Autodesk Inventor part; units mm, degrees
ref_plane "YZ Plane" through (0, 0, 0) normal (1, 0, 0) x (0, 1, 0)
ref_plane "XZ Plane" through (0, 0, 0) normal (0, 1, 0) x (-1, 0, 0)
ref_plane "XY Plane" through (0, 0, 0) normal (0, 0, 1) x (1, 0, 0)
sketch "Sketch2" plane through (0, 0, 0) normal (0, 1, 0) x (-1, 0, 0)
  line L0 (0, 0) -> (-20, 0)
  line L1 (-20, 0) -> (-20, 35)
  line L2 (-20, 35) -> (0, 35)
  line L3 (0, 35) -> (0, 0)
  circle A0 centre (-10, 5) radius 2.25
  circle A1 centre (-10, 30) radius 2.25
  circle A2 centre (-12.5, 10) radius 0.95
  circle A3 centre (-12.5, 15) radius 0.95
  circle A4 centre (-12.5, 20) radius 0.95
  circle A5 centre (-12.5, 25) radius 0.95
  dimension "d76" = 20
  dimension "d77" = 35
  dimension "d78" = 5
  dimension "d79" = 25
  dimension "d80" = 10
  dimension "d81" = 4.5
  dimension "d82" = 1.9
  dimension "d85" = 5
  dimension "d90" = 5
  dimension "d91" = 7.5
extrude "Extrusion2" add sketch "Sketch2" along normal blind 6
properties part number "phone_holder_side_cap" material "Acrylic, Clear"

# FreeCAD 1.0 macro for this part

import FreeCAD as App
import Part
import Sketcher
Q = App.Units.Quantity


def add_polygon(sketch, points):
    """Adds a closed chain of lines whose ends are joined by coincident constraints."""
    first, n = sketch.GeometryCount, len(points)
    for a, b in zip(points, points[1:] + points[:1]):
        sketch.addGeometry(Part.LineSegment(App.Vector(*a, 0), App.Vector(*b, 0)), False)
    for i in range(n):
        sketch.addConstraint(Sketcher.Constraint("Coincident", first + i, 2, first + (i + 1) % n, 1))

doc = App.newDocument("Part")
body = doc.addObject("PartDesign::Body", "Body")

sketch1 = body.newObject("Sketcher::SketchObject", "Sketch")
sketch1.AttachmentSupport = (doc.getObject("XZ_Plane"), [""])
sketch1.MapMode = "FlatFace"
add_polygon(sketch1, [(20, 0), (0, 0), (0, 35), (20, 35)])
sketch1.addGeometry(Part.Circle(App.Vector(12.5, 10, 0), App.Vector(0, 0, 1), 0.95), False)
sketch1.addGeometry(Part.Circle(App.Vector(12.5, 15, 0), App.Vector(0, 0, 1), 0.95), False)
sketch1.addGeometry(Part.Circle(App.Vector(10, 5, 0), App.Vector(0, 0, 1), 2.25), False)
sketch1.addGeometry(Part.Circle(App.Vector(12.5, 20, 0), App.Vector(0, 0, 1), 0.95), False)
sketch1.addGeometry(Part.Circle(App.Vector(12.5, 25, 0), App.Vector(0, 0, 1), 0.95), False)
sketch1.addGeometry(Part.Circle(App.Vector(10, 30, 0), App.Vector(0, 0, 1), 2.25), False)
sketch1.addConstraint(Sketcher.Constraint("Horizontal", 0))
sketch1.addConstraint(Sketcher.Constraint("Vertical", 1))
sketch1.addConstraint(Sketcher.Constraint("Horizontal", 2))
sketch1.addConstraint(Sketcher.Constraint("Vertical", 3))
sketch1.addConstraint(Sketcher.Constraint("Coincident", 0, 2, -1, 1))
sketch1.addConstraint(Sketcher.Constraint("Equal", 4, 5))
sketch1.addConstraint(Sketcher.Constraint("Equal", 5, 7))
sketch1.addConstraint(Sketcher.Constraint("Equal", 7, 8))
sketch1.addConstraint(Sketcher.Constraint("Equal", 6, 9))
sketch1.addConstraint(Sketcher.Constraint("Vertical", 4, 3, 5, 3))
sketch1.addConstraint(Sketcher.Constraint("Vertical", 5, 3, 7, 3))
sketch1.addConstraint(Sketcher.Constraint("Vertical", 7, 3, 8, 3))
sketch1.addConstraint(Sketcher.Constraint("Vertical", 6, 3, 9, 3))
sketch1.addConstraint(Sketcher.Constraint("Diameter", 4, Q("1.9 mm")))
sketch1.addConstraint(Sketcher.Constraint("Diameter", 6, Q("4.5 mm")))
sketch1.addConstraint(Sketcher.Constraint("DistanceX", 0, 2, 0, 1, Q("20 mm")))
sketch1.addConstraint(Sketcher.Constraint("DistanceY", 1, 1, 1, 2, Q("35 mm")))
sketch1.addConstraint(Sketcher.Constraint("DistanceY", -1, 1, 4, 3, Q("10 mm")))
sketch1.addConstraint(Sketcher.Constraint("DistanceX", -1, 1, 6, 3, Q("10 mm")))
sketch1.addConstraint(Sketcher.Constraint("DistanceY", -1, 1, 6, 3, Q("5 mm")))
sketch1.addConstraint(Sketcher.Constraint("DistanceY", -1, 1, 7, 3, Q("20 mm")))
sketch1.addConstraint(Sketcher.Constraint("DistanceY", -1, 1, 8, 3, Q("25 mm")))
sketch1.addConstraint(Sketcher.Constraint("DistanceY", 4, 3, 5, 3, Q("5 mm")))
sketch1.addConstraint(Sketcher.Constraint("DistanceY", 8, 3, 9, 3, Q("5 mm")))
sketch1.addConstraint(Sketcher.Constraint("DistanceX", 8, 3, 2, 2, Q("7.5 mm")))
pad1 = body.newObject("PartDesign::Pad", "Pad")
pad1.Profile = sketch1
pad1.Length = 6
pad1.Reversed = True

doc.recompute()
